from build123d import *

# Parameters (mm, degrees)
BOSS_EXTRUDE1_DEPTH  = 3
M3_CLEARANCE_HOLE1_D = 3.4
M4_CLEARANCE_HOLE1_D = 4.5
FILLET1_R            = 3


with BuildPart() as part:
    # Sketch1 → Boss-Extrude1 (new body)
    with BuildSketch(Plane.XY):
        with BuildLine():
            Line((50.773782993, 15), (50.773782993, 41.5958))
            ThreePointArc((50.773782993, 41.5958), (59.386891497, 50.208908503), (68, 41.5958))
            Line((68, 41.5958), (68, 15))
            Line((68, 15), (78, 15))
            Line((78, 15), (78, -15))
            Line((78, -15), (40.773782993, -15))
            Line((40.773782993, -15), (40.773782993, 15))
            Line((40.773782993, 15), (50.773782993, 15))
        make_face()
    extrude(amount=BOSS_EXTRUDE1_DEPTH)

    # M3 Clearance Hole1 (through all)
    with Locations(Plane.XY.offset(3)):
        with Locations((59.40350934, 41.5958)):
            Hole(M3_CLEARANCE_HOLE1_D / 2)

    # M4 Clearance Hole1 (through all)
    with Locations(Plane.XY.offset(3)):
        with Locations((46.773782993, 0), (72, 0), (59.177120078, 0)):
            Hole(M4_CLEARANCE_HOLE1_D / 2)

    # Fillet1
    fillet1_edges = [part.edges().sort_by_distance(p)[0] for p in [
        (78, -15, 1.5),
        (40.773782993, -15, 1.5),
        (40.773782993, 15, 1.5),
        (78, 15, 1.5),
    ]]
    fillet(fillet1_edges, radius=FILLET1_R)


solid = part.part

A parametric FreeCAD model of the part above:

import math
import FreeCAD as App
import Part
import Sketcher

V = App.Vector


def edges_at(feature, points):
    """Names of the edges that pass closest to the given points."""
    edges = feature.Shape.Edges
    near = lambda p: min(range(len(edges)), key=lambda i: edges[i].distToShape(Part.Vertex(*p))[0])
    return sorted({f"Edge{near(p) + 1}" for p in points})

doc = App.newDocument("Part")
params = doc.addObject("Spreadsheet::Sheet", "Params")
for row, (alias, value) in enumerate([
    ("sketch1_width", "10 mm"),
    ("sketch1_height", "30 mm"),
    ("pad1_length", "3 mm"),
    ("sketch2_diameter", "3.4 mm"),
    ("hole_diameter", "3.4 mm"),
    ("sketch3_diameter", "4.5 mm"),
    ("hole2_diameter", "4.5 mm"),
    ("fillet_radius", "3 mm"),
], start=1):
    params.set(f"A{row}", alias)
    params.set(f"B{row}", "=" + value)
    params.setAlias(f"B{row}", alias)

body = doc.addObject("PartDesign::Body", "Body")

# Sketch on XY plane
sketch1 = body.newObject("Sketcher::SketchObject", "Sketch")
sketch1.AttachmentSupport = (doc.getObject("XY_Plane"), [""])
sketch1.MapMode = "FlatFace"
sketch1.addGeometry(Part.LineSegment(V(51, 42, 0), V(51, 15, 0)), False)
sketch1.addGeometry(Part.LineSegment(V(51, 15, 0), V(41, 15, 0)), False)
sketch1.addGeometry(Part.LineSegment(V(41, 15, 0), V(41, -15, 0)), False)
sketch1.addGeometry(Part.LineSegment(V(41, -15, 0), V(78, -15, 0)), False)
sketch1.addGeometry(Part.LineSegment(V(78, -15, 0), V(78, 15, 0)), False)
sketch1.addGeometry(Part.LineSegment(V(78, 15, 0), V(68, 15, 0)), False)
sketch1.addGeometry(Part.LineSegment(V(68, 15, 0), V(68, 42, 0)), False)
sketch1.addGeometry(Part.ArcOfCircle(Part.Circle(V(59, 42, 0), V(0, 0, 1), 9), math.radians(0), math.radians(180)), False)
sketch1.addConstraint(Sketcher.Constraint("Coincident", 0, 2, 1, 1))
sketch1.addConstraint(Sketcher.Constraint("Coincident", 1, 2, 2, 1))
sketch1.addConstraint(Sketcher.Constraint("Coincident", 2, 2, 3, 1))
sketch1.addConstraint(Sketcher.Constraint("Coincident", 3, 2, 4, 1))
sketch1.addConstraint(Sketcher.Constraint("Coincident", 4, 2, 5, 1))
sketch1.addConstraint(Sketcher.Constraint("Coincident", 5, 2, 6, 1))
sketch1.addConstraint(Sketcher.Constraint("Tangent", 6, 2, 7, 1))
sketch1.addConstraint(Sketcher.Constraint("Tangent", 7, 2, 0, 1))
sketch1.addConstraint(Sketcher.Constraint("Vertical", 0))
sketch1.addConstraint(Sketcher.Constraint("Horizontal", 1))
sketch1.addConstraint(Sketcher.Constraint("Vertical", 2))
sketch1.addConstraint(Sketcher.Constraint("Horizontal", 3))
sketch1.addConstraint(Sketcher.Constraint("Vertical", 4))
sketch1.addConstraint(Sketcher.Constraint("Horizontal", 5))
sketch1.addConstraint(Sketcher.Constraint("Vertical", 6))
sketch1.addConstraint(Sketcher.Constraint("Horizontal", 1, 2, 4, 2))
sketch1.addConstraint(Sketcher.Constraint("Equal", 1, 5))
sketch1.addConstraint(Sketcher.Constraint("DistanceX", 1, 2, 1, 1, 10.0))
sketch1.addConstraint(Sketcher.Constraint("DistanceY", 2, 2, 2, 1, 30.0))
sketch1.addConstraint(Sketcher.Constraint("DistanceY", -1, 1, 0, 2, 15.0))
sketch1.addConstraint(Sketcher.Constraint("DistanceX", -1, 1, 3, 2, 78.0))
sketch1.addConstraint(Sketcher.Constraint("Radius", 7, 8.613109))
sketch1.addConstraint(Sketcher.Constraint("DistanceY", 0, 2, 0, 1, 26.5958))
sketch1.setExpression("Constraints[17]", "Params.sketch1_width")
sketch1.setExpression("Constraints[18]", "Params.sketch1_height")
pad1 = body.newObject("PartDesign::Pad", "Pad")
pad1.Profile = sketch1
pad1.setExpression("Length", "Params.pad1_length")

# Sketch on XY plane
sketch2 = body.newObject("Sketcher::SketchObject", "Sketch001")
sketch2.AttachmentSupport = (doc.getObject("XY_Plane"), [""])
sketch2.MapMode = "FlatFace"
sketch2.AttachmentOffset = App.Placement(V(0, 0, 3), App.Rotation())
sketch2.addGeometry(Part.Circle(V(59.4, 41.6, 0), V(0, 0, 1), 1.7), False)
sketch2.addConstraint(Sketcher.Constraint("Diameter", 0, 3.4))
sketch2.addConstraint(Sketcher.Constraint("DistanceY", -1, 1, 0, 3, 41.5958))
sketch2.addConstraint(Sketcher.Constraint("DistanceX", -1, 1, 0, 3, 59.403509))
sketch2.setExpression("Constraints[0]", "Params.sketch2_diameter")
doc.recompute()
hole = body.newObject("PartDesign::Hole", "Hole")
hole.Profile = sketch2
hole.ThreadType = "None"
hole.setExpression("Diameter", "Params.hole_diameter")
hole.DepthType = "ThroughAll"

# Sketch on XY plane
sketch3 = body.newObject("Sketcher::SketchObject", "Sketch002")
sketch3.AttachmentSupport = (doc.getObject("XY_Plane"), [""])
sketch3.MapMode = "FlatFace"
sketch3.AttachmentOffset = App.Placement(V(0, 0, 3), App.Rotation())
sketch3.addGeometry(Part.Circle(V(46.8, 0, 0), V(0, 0, 1), 2.2), False)
sketch3.addGeometry(Part.Circle(V(72, 0, 0), V(0, 0, 1), 2.2), False)
sketch3.addGeometry(Part.Circle(V(59.2, 0, 0), V(0, 0, 1), 2.2), False)
sketch3.addConstraint(Sketcher.Constraint("Equal", 0, 1))
sketch3.addConstraint(Sketcher.Constraint("Equal", 1, 2))
sketch3.addConstraint(Sketcher.Constraint("PointOnObject", 0, 3, -1))
sketch3.addConstraint(Sketcher.Constraint("PointOnObject", 1, 3, -1))
sketch3.addConstraint(Sketcher.Constraint("PointOnObject", 2, 3, -1))
sketch3.addConstraint(Sketcher.Constraint("Diameter", 0, 4.5))
sketch3.addConstraint(Sketcher.Constraint("DistanceX", -1, 1, 1, 3, 72.0))
sketch3.addConstraint(Sketcher.Constraint("DistanceX", -1, 1, 2, 3, 59.17712))
sketch3.addConstraint(Sketcher.Constraint("DistanceX", -1, 1, 0, 3, 46.773783))
sketch3.setExpression("Constraints[5]", "Params.sketch3_diameter")
doc.recompute()
hole2 = body.newObject("PartDesign::Hole", "Hole001")
hole2.Profile = sketch3
hole2.ThreadType = "None"
hole2.setExpression("Diameter", "Params.hole2_diameter")
hole2.DepthType = "ThroughAll"
doc.recompute()

fillet = body.newObject("PartDesign::Fillet", "Fillet")
fillet.Base = (hole2, edges_at(hole2, [
    (78, -15, 1.5),
    (40.774, -15, 1.5),
    (40.774, 15, 1.5),
    (78, 15, 1.5),
]))
fillet.setExpression("Radius", "Params.fillet_radius")

doc.recompute()
